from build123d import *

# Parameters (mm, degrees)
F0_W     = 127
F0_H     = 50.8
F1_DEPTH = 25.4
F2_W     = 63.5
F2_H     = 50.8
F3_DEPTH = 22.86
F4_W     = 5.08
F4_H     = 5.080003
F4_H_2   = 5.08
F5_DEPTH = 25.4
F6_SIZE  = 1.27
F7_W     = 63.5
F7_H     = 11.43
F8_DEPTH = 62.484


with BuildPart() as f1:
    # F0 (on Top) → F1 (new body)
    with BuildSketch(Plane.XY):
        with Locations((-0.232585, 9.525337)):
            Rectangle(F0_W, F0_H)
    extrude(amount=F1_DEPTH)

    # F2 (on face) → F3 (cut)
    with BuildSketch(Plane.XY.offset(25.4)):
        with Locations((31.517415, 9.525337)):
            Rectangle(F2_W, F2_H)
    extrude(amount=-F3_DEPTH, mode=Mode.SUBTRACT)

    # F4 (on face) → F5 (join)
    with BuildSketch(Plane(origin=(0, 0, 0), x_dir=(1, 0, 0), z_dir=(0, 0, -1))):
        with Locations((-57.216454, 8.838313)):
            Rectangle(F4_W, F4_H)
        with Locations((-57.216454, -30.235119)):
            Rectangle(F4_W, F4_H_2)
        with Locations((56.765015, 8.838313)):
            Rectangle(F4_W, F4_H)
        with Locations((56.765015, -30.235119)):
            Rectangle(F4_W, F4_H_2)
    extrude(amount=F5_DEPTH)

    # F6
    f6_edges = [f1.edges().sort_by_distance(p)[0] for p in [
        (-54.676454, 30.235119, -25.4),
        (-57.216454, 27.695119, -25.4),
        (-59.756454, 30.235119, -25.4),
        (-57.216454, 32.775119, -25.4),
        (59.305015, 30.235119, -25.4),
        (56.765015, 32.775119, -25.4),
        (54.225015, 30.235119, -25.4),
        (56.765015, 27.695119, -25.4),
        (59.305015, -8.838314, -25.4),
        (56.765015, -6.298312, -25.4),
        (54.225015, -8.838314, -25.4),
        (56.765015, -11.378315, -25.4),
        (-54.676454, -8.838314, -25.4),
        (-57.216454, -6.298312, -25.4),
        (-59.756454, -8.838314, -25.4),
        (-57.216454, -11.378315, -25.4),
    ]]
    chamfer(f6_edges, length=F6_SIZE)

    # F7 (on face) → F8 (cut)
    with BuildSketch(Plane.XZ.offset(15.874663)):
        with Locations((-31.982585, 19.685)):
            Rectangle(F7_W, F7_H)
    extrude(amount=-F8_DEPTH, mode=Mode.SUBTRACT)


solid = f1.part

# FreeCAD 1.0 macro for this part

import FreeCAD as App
import Part
import Sketcher
Q = App.Units.Quantity


def edges_at(feature, points):
    """Names of the edges that pass closest to the given points."""
    edges = feature.Shape.Edges
    near = lambda p: min(range(len(edges)), key=lambda i: edges[i].distToShape(Part.Vertex(*p))[0])
    return sorted({f"Edge{near(p) + 1}" for p in points})


def add_polygon(sketch, points):
    """Adds a closed chain of lines whose ends are joined by coincident constraints."""
    first, n = sketch.GeometryCount, len(points)
    for a, b in zip(points, points[1:] + points[:1]):
        sketch.addGeometry(Part.LineSegment(App.Vector(*a, 0), App.Vector(*b, 0)), False)
    for i in range(n):
        sketch.addConstraint(Sketcher.Constraint("Coincident", first + i, 2, first + (i + 1) % n, 1))

doc = App.newDocument("Part")
params = doc.addObject("Spreadsheet::Sheet", "Params")
for row, (alias, value) in enumerate([
    ("sketch1_width", "5 in"),
    ("sketch1_height", "2 in"),
    ("pad1_length", "1 in"),
    ("sketch2_height", "2 in"),
    ("sketch2_width", "2.5 in"),
    ("pocket1_length", "0.9 in"),
    ("sketch3_width", "0.2 in"),
    ("sketch3_height", "0.2000001 in"),
    ("pad2_length", "1 in"),
    ("chamfer_size", "0.05 in"),
    ("sketch4_width", "2.5 in"),
    ("sketch4_height", "0.45 in"),
    ("pocket2_length", "2.46 in"),
], start=1):
    params.set(f"A{row}", alias)
    params.set(f"B{row}", "=" + value)
    params.setAlias(f"B{row}", alias)

body = doc.addObject("PartDesign::Body", "Body")

sketch1 = body.newObject("Sketcher::SketchObject", "Sketch")
sketch1.AttachmentSupport = (doc.getObject("XY_Plane"), [""])
sketch1.MapMode = "FlatFace"
add_polygon(sketch1, [(-64, 35), (-64, -16), (63, -16), (63, 35)])
sketch1.addConstraint(Sketcher.Constraint("Vertical", 0))
sketch1.addConstraint(Sketcher.Constraint("Horizontal", 1))
sketch1.addConstraint(Sketcher.Constraint("Vertical", 2))
sketch1.addConstraint(Sketcher.Constraint("Horizontal", 3))
sketch1.addConstraint(Sketcher.Constraint("DistanceX", 1, 1, 1, 2, Q("5 in")))
sketch1.addConstraint(Sketcher.Constraint("DistanceY", 0, 2, 0, 1, Q("2 in")))
sketch1.addConstraint(Sketcher.Constraint("DistanceX", 0, 2, -1, 1, Q("63.732585 mm")))
sketch1.addConstraint(Sketcher.Constraint("DistanceY", 0, 2, -1, 1, Q("15.874663 mm")))
sketch1.setExpression("Constraints[8]", "Params.sketch1_width")
sketch1.setExpression("Constraints[9]", "Params.sketch1_height")
pad1 = body.newObject("PartDesign::Pad", "Pad")
pad1.Profile = sketch1
pad1.setExpression("Length", "Params.pad1_length")

sketch2 = body.newObject("Sketcher::SketchObject", "Sketch001")
sketch2.AttachmentSupport = (doc.getObject("XY_Plane"), [""])
sketch2.MapMode = "FlatFace"
sketch2.AttachmentOffset = App.Placement(App.Vector(0, 0, 1 * 25.4), App.Rotation())
add_polygon(sketch2, [(0, 35), (0, -16), (63, -16), (63, 35)])
sketch2.addConstraint(Sketcher.Constraint("Vertical", 0))
sketch2.addConstraint(Sketcher.Constraint("Horizontal", 1))
sketch2.addConstraint(Sketcher.Constraint("Vertical", 2))
sketch2.addConstraint(Sketcher.Constraint("Horizontal", 3))
sketch2.addConstraint(Sketcher.Constraint("DistanceY", 0, 2, 0, 1, Q("2 in")))
sketch2.addConstraint(Sketcher.Constraint("DistanceX", 1, 1, 1, 2, Q("2.5 in")))
sketch2.addConstraint(Sketcher.Constraint("DistanceX", 0, 2, -1, 1, Q("0.232585 mm")))
sketch2.addConstraint(Sketcher.Constraint("DistanceY", 0, 2, -1, 1, Q("15.874663 mm")))
sketch2.setExpression("Constraints[8]", "Params.sketch2_height")
sketch2.setExpression("Constraints[9]", "Params.sketch2_width")
pocket1 = body.newObject("PartDesign::Pocket", "Pocket")
pocket1.Profile = sketch2
pocket1.setExpression("Length", "Params.pocket1_length")

sketch3 = body.newObject("Sketcher::SketchObject", "Sketch002")
sketch3.AttachmentSupport = (doc.getObject("XY_Plane"), [""])
sketch3.MapMode = "FlatFace"
add_polygon(sketch3, [(-60, -11), (-60, -6), (-55, -6), (-55, -11)])
add_polygon(sketch3, [(-60, 28), (-60, 33), (-55, 33), (-55, 28)])
add_polygon(sketch3, [(54, -11), (54, -6), (59, -6), (59, -11)])
add_polygon(sketch3, [(54, 28), (54, 33), (59, 33), (59, 28)])
sketch3.addConstraint(Sketcher.Constraint("Vertical", 0))
sketch3.addConstraint(Sketcher.Constraint("Horizontal", 1))
sketch3.addConstraint(Sketcher.Constraint("Vertical", 2))
sketch3.addConstraint(Sketcher.Constraint("Horizontal", 3))
sketch3.addConstraint(Sketcher.Constraint("Vertical", 4))
sketch3.addConstraint(Sketcher.Constraint("Horizontal", 5))
sketch3.addConstraint(Sketcher.Constraint("Vertical", 6))
sketch3.addConstraint(Sketcher.Constraint("Horizontal", 7))
sketch3.addConstraint(Sketcher.Constraint("Vertical", 8))
sketch3.addConstraint(Sketcher.Constraint("Horizontal", 9))
sketch3.addConstraint(Sketcher.Constraint("Vertical", 10))
sketch3.addConstraint(Sketcher.Constraint("Horizontal", 11))
sketch3.addConstraint(Sketcher.Constraint("Vertical", 12))
sketch3.addConstraint(Sketcher.Constraint("Horizontal", 13))
sketch3.addConstraint(Sketcher.Constraint("Vertical", 14))
sketch3.addConstraint(Sketcher.Constraint("Horizontal", 15))
sketch3.addConstraint(Sketcher.Constraint("Horizontal", 1, 2, 8, 2))
sketch3.addConstraint(Sketcher.Constraint("Horizontal", 3, 2, 10, 2))
sketch3.addConstraint(Sketcher.Constraint("Horizontal", 5, 2, 12, 2))
sketch3.addConstraint(Sketcher.Constraint("Horizontal", 7, 2, 14, 2))
sketch3.addConstraint(Sketcher.Constraint("Vertical", 3, 2, 4, 2))
sketch3.addConstraint(Sketcher.Constraint("Vertical", 2, 2, 5, 2))
sketch3.addConstraint(Sketcher.Constraint("Vertical", 11, 2, 12, 2))
sketch3.addConstraint(Sketcher.Constraint("Vertical", 10, 2, 13, 2))
sketch3.addConstraint(Sketcher.Constraint("Equal", 7, 9))
sketch3.addConstraint(Sketcher.Constraint("Equal", 15, 4))
sketch3.addConstraint(Sketcher.Constraint("DistanceX", 1, 1, 1, 2, Q("0.2 in")))
sketch3.addConstraint(Sketcher.Constraint("DistanceY", 0, 1, 0, 2, Q("0.2000001 in")))
sketch3.addConstraint(Sketcher.Constraint("DistanceY", 0, 2, -1, 1, Q("6.298311 mm")))
sketch3.addConstraint(Sketcher.Constraint("DistanceY", -1, 1, 4, 2, Q("32.775119 mm")))
sketch3.addConstraint(Sketcher.Constraint("DistanceX", 1, 2, 8, 2, Q("108.901469 mm")))
sketch3.addConstraint(Sketcher.Constraint("DistanceX", 0, 2, -1, 1, Q("59.756454 mm")))
sketch3.setExpression("Constraints[42]", "Params.sketch3_width")
sketch3.setExpression("Constraints[43]", "Params.sketch3_height")
pad2 = body.newObject("PartDesign::Pad", "Pad001")
pad2.Profile = sketch3
pad2.setExpression("Length", "Params.pad2_length")
pad2.Reversed = True
doc.recompute()

chamfer = body.newObject("PartDesign::Chamfer", "Chamfer")
chamfer.Base = (pad2, edges_at(pad2, [
    (-54.676, 30.235, -25.4),
    (-57.216, 27.695, -25.4),
    (-59.756, 30.235, -25.4),
    (-57.216, 32.775, -25.4),
    (59.305, 30.235, -25.4),
    (56.765, 32.775, -25.4),
    (54.225, 30.235, -25.4),
    (56.765, 27.695, -25.4),
    (59.305, -8.838, -25.4),
    (56.765, -6.298, -25.4),
    (54.225, -8.838, -25.4),
    (56.765, -11.378, -25.4),
    (-54.676, -8.838, -25.4),
    (-57.216, -6.298, -25.4),
    (-59.756, -8.838, -25.4),
    (-57.216, -11.378, -25.4),
]))
chamfer.setExpression("Size", "Params.chamfer_size")

sketch4 = body.newObject("Sketcher::SketchObject", "Sketch003")
sketch4.AttachmentSupport = (doc.getObject("XZ_Plane"), [""])
sketch4.MapMode = "FlatFace"
sketch4.AttachmentOffset = App.Placement(App.Vector(0, 0, 15.874663), App.Rotation())
add_polygon(sketch4, [(-64, 25), (-64, 14), (0, 14), (0, 25)])
sketch4.addConstraint(Sketcher.Constraint("Vertical", 0))
sketch4.addConstraint(Sketcher.Constraint("Horizontal", 1))
sketch4.addConstraint(Sketcher.Constraint("Vertical", 2))
sketch4.addConstraint(Sketcher.Constraint("Horizontal", 3))
sketch4.addConstraint(Sketcher.Constraint("DistanceX", 1, 1, 1, 2, Q("2.5 in")))
sketch4.addConstraint(Sketcher.Constraint("DistanceY", -1, 1, 2, 2, Q("1 in")))
sketch4.addConstraint(Sketcher.Constraint("DistanceY", 0, 2, 0, 1, Q("0.45 in")))
sketch4.addConstraint(Sketcher.Constraint("DistanceX", 0, 2, -1, 1, Q("63.732585 mm")))
sketch4.setExpression("Constraints[8]", "Params.sketch4_width")
sketch4.setExpression("Constraints[10]", "Params.sketch4_height")
pocket2 = body.newObject("PartDesign::Pocket", "Pocket001")
pocket2.Profile = sketch4
pocket2.setExpression("Length", "Params.pocket2_length")

doc.recompute()
